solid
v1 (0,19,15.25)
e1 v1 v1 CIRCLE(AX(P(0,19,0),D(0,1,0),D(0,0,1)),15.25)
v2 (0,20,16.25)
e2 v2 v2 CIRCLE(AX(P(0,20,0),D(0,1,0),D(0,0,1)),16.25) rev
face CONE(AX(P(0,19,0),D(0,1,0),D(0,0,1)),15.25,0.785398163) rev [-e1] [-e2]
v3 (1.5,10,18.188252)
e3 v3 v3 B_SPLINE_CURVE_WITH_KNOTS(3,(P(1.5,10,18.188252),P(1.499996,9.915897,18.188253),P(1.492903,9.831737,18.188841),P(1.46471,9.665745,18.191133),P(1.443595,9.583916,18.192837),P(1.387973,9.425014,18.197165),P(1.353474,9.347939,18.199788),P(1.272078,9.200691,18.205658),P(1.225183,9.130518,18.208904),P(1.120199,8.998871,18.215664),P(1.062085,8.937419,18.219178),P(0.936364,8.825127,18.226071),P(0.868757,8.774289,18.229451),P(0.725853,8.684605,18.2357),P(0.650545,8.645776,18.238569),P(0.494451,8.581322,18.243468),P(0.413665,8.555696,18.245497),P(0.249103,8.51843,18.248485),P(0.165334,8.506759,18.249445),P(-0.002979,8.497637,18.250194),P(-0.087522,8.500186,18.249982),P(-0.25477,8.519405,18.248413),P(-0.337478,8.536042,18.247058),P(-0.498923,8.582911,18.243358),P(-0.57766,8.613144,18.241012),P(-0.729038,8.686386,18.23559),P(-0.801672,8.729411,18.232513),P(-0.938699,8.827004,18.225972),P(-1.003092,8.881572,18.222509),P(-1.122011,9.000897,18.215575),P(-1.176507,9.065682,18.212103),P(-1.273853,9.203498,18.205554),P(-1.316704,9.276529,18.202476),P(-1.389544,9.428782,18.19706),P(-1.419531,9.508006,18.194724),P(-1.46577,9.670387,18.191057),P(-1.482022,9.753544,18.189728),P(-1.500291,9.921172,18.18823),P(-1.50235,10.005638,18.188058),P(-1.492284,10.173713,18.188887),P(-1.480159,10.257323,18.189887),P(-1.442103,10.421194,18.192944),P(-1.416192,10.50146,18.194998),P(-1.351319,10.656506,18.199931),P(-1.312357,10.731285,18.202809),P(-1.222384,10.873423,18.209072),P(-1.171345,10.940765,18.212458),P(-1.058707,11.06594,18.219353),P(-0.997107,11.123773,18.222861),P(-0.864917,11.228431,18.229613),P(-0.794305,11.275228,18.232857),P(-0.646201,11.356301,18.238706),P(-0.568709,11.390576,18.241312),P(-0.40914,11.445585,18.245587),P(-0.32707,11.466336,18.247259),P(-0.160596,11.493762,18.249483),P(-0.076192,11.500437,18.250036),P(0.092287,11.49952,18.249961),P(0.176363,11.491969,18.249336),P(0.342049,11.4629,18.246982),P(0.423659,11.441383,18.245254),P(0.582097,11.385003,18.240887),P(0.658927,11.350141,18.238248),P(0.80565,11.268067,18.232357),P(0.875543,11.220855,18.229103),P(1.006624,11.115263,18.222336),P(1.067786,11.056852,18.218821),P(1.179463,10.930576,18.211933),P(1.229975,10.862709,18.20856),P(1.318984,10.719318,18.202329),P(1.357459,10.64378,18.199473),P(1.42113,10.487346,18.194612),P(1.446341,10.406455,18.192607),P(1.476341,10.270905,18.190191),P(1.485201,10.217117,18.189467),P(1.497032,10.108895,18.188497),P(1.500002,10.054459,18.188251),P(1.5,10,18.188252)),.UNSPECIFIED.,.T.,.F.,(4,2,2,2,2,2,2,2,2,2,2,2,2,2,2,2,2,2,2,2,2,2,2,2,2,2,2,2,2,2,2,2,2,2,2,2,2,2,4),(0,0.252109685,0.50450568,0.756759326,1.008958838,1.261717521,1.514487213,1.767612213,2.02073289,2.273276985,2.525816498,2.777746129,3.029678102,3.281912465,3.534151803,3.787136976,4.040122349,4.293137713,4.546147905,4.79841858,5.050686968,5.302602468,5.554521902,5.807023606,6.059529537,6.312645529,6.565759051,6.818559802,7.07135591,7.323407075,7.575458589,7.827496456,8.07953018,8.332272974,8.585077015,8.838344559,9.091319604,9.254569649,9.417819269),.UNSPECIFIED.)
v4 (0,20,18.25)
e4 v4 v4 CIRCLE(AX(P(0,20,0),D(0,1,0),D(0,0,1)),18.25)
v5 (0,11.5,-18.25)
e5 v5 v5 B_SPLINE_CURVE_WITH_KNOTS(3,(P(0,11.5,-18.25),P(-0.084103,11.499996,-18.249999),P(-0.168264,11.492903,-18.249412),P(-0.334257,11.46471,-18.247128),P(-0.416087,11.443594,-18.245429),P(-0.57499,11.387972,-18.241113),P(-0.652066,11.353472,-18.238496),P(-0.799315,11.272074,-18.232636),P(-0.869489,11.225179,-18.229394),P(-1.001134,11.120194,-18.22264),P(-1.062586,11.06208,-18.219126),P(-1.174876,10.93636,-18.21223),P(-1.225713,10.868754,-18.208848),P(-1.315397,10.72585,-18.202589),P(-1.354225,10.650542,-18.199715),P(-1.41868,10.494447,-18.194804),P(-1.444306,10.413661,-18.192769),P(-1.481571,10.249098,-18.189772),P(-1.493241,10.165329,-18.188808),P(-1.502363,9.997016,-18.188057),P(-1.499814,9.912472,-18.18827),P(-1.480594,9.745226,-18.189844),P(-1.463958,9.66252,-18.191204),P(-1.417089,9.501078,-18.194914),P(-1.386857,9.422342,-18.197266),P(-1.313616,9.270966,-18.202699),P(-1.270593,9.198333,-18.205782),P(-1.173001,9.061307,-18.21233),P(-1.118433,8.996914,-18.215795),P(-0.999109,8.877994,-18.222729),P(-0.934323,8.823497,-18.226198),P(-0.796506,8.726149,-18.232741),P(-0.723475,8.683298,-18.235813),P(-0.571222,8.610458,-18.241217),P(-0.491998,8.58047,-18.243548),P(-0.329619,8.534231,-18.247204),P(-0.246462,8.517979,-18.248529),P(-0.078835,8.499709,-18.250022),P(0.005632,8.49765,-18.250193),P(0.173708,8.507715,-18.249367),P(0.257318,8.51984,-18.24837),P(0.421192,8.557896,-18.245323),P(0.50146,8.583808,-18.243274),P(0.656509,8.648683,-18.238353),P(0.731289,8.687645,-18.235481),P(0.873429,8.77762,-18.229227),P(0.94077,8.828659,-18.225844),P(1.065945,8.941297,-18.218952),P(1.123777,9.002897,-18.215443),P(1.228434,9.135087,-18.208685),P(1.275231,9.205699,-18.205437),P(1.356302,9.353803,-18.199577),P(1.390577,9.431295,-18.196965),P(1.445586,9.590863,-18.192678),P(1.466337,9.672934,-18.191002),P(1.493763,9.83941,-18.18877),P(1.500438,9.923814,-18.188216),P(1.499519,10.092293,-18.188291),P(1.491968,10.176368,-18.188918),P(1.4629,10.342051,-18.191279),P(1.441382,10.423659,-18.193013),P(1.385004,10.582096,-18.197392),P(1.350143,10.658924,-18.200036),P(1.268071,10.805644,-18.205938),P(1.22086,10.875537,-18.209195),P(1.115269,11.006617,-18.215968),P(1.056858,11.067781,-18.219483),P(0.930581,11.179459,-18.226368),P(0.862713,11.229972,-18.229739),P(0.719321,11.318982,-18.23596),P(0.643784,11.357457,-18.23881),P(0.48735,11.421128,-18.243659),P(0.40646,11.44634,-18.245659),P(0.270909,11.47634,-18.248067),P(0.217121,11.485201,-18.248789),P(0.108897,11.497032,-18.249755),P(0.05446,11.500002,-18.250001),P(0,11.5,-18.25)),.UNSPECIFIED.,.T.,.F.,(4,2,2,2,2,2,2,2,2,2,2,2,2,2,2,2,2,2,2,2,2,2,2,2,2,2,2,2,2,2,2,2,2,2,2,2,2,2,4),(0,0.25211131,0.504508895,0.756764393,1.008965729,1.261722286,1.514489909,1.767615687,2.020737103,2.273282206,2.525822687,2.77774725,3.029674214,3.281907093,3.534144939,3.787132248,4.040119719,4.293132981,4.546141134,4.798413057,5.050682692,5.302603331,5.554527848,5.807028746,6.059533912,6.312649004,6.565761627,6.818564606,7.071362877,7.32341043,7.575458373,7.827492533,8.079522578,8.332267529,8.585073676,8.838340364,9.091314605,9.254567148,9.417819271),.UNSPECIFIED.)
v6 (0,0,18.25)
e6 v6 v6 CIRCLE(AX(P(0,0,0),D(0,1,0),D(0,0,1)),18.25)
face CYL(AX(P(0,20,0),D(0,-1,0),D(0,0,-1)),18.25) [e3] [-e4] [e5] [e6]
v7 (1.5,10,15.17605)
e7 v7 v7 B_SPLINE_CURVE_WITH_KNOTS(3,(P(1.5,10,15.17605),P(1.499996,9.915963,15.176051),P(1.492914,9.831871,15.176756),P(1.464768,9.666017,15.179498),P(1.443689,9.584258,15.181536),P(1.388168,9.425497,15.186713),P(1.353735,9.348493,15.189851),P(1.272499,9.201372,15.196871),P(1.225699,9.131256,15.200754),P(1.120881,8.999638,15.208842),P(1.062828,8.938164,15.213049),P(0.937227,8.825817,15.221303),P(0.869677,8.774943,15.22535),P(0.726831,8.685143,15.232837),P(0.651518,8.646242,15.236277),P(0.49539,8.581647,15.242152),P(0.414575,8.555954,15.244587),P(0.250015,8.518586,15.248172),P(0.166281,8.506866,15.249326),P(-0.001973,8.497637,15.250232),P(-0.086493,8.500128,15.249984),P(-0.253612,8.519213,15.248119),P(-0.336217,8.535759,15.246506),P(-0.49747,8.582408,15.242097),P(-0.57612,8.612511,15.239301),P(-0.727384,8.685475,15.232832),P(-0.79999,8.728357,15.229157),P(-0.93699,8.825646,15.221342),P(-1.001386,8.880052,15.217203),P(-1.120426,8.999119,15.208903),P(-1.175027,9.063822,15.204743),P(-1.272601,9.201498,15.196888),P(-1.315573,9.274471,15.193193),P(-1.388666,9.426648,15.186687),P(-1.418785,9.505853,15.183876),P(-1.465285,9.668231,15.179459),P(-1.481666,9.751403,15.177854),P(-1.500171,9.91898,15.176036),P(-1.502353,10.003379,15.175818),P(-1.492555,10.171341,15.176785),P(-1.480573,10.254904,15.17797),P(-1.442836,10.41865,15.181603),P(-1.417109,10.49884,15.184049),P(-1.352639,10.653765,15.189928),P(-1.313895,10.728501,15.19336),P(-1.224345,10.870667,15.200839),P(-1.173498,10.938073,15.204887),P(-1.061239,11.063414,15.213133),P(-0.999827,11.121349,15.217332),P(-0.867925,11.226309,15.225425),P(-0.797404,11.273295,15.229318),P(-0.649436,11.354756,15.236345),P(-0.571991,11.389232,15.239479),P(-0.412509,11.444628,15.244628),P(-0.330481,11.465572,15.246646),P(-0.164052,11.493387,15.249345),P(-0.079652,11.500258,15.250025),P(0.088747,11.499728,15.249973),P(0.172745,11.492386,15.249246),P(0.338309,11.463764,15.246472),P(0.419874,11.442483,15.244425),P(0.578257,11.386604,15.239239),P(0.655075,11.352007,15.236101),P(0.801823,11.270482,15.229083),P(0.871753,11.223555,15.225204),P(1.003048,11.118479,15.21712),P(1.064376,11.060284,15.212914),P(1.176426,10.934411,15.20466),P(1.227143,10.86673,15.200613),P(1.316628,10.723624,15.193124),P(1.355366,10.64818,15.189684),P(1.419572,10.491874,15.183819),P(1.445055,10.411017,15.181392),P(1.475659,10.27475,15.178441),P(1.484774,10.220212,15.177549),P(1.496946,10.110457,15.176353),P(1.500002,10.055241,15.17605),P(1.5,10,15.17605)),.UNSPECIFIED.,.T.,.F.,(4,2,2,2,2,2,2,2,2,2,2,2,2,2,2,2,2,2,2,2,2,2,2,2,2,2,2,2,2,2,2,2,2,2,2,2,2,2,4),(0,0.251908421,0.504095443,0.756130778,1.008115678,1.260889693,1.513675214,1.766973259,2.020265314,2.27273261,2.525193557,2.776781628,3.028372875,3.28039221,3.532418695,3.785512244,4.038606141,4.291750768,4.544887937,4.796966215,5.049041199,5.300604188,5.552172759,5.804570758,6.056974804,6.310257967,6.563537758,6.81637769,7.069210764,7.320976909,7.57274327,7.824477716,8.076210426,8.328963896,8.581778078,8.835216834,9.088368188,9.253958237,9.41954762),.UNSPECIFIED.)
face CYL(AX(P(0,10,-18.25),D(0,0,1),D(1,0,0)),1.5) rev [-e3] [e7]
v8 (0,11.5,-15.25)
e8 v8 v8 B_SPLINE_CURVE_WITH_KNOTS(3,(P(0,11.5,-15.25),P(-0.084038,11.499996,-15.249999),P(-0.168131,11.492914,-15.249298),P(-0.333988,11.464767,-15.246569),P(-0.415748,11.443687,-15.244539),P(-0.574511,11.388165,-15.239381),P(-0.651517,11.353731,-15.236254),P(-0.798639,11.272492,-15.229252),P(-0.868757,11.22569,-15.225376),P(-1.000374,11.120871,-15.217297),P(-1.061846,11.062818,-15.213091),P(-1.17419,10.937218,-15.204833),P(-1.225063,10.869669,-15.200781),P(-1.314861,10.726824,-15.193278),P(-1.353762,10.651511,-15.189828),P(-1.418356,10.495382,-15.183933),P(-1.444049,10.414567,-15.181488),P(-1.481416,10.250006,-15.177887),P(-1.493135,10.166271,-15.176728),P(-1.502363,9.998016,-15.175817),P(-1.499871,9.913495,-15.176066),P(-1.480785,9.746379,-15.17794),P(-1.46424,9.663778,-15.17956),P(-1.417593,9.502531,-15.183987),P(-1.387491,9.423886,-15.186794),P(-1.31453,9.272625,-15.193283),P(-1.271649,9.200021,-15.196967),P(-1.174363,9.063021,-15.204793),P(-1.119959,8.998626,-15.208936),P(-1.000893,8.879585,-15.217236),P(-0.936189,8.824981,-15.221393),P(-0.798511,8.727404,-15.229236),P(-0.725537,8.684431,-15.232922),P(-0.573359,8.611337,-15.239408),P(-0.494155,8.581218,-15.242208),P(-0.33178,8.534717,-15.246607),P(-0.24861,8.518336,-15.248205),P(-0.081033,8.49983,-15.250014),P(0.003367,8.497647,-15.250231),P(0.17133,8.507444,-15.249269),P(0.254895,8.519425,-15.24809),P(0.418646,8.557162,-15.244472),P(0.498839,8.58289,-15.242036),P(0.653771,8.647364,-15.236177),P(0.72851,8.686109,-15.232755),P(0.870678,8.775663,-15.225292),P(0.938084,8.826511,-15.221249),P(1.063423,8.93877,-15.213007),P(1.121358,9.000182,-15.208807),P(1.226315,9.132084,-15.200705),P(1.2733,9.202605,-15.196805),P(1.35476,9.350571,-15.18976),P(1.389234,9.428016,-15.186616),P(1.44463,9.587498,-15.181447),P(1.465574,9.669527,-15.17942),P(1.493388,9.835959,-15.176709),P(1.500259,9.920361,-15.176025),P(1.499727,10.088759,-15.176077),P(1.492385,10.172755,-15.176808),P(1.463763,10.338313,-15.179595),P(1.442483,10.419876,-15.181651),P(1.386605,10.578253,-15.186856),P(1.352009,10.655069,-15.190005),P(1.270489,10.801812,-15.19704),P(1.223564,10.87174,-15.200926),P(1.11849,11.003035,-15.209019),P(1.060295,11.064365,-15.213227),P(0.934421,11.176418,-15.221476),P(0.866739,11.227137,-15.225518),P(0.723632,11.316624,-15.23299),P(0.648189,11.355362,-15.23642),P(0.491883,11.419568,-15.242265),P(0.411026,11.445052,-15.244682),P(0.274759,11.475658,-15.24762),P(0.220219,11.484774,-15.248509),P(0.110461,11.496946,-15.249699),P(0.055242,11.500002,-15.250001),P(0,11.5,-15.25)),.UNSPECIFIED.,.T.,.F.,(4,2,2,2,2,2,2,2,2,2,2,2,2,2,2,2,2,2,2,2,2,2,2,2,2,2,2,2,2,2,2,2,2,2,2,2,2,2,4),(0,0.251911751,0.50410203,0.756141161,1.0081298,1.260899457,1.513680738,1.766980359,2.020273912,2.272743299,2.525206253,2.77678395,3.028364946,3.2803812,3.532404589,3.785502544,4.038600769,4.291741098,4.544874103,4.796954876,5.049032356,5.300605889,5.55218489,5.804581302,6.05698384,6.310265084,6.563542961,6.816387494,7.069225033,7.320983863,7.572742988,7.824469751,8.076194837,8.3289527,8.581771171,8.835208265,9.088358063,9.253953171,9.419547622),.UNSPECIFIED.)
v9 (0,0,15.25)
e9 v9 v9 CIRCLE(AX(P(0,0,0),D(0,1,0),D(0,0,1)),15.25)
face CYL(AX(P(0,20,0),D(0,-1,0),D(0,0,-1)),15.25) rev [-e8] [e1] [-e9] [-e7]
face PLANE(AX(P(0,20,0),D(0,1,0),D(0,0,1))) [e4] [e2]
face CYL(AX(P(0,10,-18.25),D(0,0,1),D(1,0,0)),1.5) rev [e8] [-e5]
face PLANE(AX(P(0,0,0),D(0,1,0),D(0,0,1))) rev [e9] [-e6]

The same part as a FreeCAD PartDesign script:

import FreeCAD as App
import Part
import Sketcher

V = App.Vector


def edges_at(feature, points):
    """Names of the edges that pass closest to the given points."""
    edges = feature.Shape.Edges
    near = lambda p: min(range(len(edges)), key=lambda i: edges[i].distToShape(Part.Vertex(*p))[0])
    return sorted({f"Edge{near(p) + 1}" for p in points})

doc = App.newDocument("Part")
body = doc.addObject("PartDesign::Body", "Body")

# Sketch on XZ plane
sketch1 = body.newObject("Sketcher::SketchObject", "Sketch")
sketch1.AttachmentSupport = (doc.getObject("XZ_Plane"), [""])
sketch1.MapMode = "FlatFace"
sketch1.addGeometry([
    Part.Circle(V(0, 0, 0), V(0, 0, 1), 18.25),
    Part.Circle(V(0, 0, 0), V(0, 0, 1), 15.25),
], False)
sketch1.addConstraint([
    Sketcher.Constraint("Coincident", 0, 3, -1, 1),
    Sketcher.Constraint("Coincident", 1, 3, -1, 1),
    Sketcher.Constraint("Diameter", 0, 36.5),
    Sketcher.Constraint("Diameter", 1, 30.5),
])
pad1 = body.newObject("PartDesign::Pad", "Pad")
pad1.Profile = sketch1
pad1.Length = 20
pad1.Reversed = True

# Sketch on XY plane
sketch2 = body.newObject("Sketcher::SketchObject", "Sketch001")
sketch2.AttachmentSupport = (doc.getObject("XY_Plane"), [""])
sketch2.MapMode = "FlatFace"
sketch2.addGeometry(Part.Circle(V(0, 10, 0), V(0, 0, 1), 1.5), False)
sketch2.addConstraint([
    Sketcher.Constraint("PointOnObject", 0, 3, -2),
    Sketcher.Constraint("Diameter", 0, 3.0),
    Sketcher.Constraint("DistanceY", -1, 1, 0, 3, 10.0),
])
pocket1 = body.newObject("PartDesign::Pocket", "Pocket")
pocket1.Profile = sketch2
pocket1.Type = "ThroughAll"
pocket1.Midplane = True
doc.recompute()

chamfer = body.newObject("PartDesign::Chamfer", "Chamfer")
chamfer.Base = (pocket1, edges_at(pocket1, [(-15.25, 20, 0)]))
chamfer.Size = 1

doc.recompute()
